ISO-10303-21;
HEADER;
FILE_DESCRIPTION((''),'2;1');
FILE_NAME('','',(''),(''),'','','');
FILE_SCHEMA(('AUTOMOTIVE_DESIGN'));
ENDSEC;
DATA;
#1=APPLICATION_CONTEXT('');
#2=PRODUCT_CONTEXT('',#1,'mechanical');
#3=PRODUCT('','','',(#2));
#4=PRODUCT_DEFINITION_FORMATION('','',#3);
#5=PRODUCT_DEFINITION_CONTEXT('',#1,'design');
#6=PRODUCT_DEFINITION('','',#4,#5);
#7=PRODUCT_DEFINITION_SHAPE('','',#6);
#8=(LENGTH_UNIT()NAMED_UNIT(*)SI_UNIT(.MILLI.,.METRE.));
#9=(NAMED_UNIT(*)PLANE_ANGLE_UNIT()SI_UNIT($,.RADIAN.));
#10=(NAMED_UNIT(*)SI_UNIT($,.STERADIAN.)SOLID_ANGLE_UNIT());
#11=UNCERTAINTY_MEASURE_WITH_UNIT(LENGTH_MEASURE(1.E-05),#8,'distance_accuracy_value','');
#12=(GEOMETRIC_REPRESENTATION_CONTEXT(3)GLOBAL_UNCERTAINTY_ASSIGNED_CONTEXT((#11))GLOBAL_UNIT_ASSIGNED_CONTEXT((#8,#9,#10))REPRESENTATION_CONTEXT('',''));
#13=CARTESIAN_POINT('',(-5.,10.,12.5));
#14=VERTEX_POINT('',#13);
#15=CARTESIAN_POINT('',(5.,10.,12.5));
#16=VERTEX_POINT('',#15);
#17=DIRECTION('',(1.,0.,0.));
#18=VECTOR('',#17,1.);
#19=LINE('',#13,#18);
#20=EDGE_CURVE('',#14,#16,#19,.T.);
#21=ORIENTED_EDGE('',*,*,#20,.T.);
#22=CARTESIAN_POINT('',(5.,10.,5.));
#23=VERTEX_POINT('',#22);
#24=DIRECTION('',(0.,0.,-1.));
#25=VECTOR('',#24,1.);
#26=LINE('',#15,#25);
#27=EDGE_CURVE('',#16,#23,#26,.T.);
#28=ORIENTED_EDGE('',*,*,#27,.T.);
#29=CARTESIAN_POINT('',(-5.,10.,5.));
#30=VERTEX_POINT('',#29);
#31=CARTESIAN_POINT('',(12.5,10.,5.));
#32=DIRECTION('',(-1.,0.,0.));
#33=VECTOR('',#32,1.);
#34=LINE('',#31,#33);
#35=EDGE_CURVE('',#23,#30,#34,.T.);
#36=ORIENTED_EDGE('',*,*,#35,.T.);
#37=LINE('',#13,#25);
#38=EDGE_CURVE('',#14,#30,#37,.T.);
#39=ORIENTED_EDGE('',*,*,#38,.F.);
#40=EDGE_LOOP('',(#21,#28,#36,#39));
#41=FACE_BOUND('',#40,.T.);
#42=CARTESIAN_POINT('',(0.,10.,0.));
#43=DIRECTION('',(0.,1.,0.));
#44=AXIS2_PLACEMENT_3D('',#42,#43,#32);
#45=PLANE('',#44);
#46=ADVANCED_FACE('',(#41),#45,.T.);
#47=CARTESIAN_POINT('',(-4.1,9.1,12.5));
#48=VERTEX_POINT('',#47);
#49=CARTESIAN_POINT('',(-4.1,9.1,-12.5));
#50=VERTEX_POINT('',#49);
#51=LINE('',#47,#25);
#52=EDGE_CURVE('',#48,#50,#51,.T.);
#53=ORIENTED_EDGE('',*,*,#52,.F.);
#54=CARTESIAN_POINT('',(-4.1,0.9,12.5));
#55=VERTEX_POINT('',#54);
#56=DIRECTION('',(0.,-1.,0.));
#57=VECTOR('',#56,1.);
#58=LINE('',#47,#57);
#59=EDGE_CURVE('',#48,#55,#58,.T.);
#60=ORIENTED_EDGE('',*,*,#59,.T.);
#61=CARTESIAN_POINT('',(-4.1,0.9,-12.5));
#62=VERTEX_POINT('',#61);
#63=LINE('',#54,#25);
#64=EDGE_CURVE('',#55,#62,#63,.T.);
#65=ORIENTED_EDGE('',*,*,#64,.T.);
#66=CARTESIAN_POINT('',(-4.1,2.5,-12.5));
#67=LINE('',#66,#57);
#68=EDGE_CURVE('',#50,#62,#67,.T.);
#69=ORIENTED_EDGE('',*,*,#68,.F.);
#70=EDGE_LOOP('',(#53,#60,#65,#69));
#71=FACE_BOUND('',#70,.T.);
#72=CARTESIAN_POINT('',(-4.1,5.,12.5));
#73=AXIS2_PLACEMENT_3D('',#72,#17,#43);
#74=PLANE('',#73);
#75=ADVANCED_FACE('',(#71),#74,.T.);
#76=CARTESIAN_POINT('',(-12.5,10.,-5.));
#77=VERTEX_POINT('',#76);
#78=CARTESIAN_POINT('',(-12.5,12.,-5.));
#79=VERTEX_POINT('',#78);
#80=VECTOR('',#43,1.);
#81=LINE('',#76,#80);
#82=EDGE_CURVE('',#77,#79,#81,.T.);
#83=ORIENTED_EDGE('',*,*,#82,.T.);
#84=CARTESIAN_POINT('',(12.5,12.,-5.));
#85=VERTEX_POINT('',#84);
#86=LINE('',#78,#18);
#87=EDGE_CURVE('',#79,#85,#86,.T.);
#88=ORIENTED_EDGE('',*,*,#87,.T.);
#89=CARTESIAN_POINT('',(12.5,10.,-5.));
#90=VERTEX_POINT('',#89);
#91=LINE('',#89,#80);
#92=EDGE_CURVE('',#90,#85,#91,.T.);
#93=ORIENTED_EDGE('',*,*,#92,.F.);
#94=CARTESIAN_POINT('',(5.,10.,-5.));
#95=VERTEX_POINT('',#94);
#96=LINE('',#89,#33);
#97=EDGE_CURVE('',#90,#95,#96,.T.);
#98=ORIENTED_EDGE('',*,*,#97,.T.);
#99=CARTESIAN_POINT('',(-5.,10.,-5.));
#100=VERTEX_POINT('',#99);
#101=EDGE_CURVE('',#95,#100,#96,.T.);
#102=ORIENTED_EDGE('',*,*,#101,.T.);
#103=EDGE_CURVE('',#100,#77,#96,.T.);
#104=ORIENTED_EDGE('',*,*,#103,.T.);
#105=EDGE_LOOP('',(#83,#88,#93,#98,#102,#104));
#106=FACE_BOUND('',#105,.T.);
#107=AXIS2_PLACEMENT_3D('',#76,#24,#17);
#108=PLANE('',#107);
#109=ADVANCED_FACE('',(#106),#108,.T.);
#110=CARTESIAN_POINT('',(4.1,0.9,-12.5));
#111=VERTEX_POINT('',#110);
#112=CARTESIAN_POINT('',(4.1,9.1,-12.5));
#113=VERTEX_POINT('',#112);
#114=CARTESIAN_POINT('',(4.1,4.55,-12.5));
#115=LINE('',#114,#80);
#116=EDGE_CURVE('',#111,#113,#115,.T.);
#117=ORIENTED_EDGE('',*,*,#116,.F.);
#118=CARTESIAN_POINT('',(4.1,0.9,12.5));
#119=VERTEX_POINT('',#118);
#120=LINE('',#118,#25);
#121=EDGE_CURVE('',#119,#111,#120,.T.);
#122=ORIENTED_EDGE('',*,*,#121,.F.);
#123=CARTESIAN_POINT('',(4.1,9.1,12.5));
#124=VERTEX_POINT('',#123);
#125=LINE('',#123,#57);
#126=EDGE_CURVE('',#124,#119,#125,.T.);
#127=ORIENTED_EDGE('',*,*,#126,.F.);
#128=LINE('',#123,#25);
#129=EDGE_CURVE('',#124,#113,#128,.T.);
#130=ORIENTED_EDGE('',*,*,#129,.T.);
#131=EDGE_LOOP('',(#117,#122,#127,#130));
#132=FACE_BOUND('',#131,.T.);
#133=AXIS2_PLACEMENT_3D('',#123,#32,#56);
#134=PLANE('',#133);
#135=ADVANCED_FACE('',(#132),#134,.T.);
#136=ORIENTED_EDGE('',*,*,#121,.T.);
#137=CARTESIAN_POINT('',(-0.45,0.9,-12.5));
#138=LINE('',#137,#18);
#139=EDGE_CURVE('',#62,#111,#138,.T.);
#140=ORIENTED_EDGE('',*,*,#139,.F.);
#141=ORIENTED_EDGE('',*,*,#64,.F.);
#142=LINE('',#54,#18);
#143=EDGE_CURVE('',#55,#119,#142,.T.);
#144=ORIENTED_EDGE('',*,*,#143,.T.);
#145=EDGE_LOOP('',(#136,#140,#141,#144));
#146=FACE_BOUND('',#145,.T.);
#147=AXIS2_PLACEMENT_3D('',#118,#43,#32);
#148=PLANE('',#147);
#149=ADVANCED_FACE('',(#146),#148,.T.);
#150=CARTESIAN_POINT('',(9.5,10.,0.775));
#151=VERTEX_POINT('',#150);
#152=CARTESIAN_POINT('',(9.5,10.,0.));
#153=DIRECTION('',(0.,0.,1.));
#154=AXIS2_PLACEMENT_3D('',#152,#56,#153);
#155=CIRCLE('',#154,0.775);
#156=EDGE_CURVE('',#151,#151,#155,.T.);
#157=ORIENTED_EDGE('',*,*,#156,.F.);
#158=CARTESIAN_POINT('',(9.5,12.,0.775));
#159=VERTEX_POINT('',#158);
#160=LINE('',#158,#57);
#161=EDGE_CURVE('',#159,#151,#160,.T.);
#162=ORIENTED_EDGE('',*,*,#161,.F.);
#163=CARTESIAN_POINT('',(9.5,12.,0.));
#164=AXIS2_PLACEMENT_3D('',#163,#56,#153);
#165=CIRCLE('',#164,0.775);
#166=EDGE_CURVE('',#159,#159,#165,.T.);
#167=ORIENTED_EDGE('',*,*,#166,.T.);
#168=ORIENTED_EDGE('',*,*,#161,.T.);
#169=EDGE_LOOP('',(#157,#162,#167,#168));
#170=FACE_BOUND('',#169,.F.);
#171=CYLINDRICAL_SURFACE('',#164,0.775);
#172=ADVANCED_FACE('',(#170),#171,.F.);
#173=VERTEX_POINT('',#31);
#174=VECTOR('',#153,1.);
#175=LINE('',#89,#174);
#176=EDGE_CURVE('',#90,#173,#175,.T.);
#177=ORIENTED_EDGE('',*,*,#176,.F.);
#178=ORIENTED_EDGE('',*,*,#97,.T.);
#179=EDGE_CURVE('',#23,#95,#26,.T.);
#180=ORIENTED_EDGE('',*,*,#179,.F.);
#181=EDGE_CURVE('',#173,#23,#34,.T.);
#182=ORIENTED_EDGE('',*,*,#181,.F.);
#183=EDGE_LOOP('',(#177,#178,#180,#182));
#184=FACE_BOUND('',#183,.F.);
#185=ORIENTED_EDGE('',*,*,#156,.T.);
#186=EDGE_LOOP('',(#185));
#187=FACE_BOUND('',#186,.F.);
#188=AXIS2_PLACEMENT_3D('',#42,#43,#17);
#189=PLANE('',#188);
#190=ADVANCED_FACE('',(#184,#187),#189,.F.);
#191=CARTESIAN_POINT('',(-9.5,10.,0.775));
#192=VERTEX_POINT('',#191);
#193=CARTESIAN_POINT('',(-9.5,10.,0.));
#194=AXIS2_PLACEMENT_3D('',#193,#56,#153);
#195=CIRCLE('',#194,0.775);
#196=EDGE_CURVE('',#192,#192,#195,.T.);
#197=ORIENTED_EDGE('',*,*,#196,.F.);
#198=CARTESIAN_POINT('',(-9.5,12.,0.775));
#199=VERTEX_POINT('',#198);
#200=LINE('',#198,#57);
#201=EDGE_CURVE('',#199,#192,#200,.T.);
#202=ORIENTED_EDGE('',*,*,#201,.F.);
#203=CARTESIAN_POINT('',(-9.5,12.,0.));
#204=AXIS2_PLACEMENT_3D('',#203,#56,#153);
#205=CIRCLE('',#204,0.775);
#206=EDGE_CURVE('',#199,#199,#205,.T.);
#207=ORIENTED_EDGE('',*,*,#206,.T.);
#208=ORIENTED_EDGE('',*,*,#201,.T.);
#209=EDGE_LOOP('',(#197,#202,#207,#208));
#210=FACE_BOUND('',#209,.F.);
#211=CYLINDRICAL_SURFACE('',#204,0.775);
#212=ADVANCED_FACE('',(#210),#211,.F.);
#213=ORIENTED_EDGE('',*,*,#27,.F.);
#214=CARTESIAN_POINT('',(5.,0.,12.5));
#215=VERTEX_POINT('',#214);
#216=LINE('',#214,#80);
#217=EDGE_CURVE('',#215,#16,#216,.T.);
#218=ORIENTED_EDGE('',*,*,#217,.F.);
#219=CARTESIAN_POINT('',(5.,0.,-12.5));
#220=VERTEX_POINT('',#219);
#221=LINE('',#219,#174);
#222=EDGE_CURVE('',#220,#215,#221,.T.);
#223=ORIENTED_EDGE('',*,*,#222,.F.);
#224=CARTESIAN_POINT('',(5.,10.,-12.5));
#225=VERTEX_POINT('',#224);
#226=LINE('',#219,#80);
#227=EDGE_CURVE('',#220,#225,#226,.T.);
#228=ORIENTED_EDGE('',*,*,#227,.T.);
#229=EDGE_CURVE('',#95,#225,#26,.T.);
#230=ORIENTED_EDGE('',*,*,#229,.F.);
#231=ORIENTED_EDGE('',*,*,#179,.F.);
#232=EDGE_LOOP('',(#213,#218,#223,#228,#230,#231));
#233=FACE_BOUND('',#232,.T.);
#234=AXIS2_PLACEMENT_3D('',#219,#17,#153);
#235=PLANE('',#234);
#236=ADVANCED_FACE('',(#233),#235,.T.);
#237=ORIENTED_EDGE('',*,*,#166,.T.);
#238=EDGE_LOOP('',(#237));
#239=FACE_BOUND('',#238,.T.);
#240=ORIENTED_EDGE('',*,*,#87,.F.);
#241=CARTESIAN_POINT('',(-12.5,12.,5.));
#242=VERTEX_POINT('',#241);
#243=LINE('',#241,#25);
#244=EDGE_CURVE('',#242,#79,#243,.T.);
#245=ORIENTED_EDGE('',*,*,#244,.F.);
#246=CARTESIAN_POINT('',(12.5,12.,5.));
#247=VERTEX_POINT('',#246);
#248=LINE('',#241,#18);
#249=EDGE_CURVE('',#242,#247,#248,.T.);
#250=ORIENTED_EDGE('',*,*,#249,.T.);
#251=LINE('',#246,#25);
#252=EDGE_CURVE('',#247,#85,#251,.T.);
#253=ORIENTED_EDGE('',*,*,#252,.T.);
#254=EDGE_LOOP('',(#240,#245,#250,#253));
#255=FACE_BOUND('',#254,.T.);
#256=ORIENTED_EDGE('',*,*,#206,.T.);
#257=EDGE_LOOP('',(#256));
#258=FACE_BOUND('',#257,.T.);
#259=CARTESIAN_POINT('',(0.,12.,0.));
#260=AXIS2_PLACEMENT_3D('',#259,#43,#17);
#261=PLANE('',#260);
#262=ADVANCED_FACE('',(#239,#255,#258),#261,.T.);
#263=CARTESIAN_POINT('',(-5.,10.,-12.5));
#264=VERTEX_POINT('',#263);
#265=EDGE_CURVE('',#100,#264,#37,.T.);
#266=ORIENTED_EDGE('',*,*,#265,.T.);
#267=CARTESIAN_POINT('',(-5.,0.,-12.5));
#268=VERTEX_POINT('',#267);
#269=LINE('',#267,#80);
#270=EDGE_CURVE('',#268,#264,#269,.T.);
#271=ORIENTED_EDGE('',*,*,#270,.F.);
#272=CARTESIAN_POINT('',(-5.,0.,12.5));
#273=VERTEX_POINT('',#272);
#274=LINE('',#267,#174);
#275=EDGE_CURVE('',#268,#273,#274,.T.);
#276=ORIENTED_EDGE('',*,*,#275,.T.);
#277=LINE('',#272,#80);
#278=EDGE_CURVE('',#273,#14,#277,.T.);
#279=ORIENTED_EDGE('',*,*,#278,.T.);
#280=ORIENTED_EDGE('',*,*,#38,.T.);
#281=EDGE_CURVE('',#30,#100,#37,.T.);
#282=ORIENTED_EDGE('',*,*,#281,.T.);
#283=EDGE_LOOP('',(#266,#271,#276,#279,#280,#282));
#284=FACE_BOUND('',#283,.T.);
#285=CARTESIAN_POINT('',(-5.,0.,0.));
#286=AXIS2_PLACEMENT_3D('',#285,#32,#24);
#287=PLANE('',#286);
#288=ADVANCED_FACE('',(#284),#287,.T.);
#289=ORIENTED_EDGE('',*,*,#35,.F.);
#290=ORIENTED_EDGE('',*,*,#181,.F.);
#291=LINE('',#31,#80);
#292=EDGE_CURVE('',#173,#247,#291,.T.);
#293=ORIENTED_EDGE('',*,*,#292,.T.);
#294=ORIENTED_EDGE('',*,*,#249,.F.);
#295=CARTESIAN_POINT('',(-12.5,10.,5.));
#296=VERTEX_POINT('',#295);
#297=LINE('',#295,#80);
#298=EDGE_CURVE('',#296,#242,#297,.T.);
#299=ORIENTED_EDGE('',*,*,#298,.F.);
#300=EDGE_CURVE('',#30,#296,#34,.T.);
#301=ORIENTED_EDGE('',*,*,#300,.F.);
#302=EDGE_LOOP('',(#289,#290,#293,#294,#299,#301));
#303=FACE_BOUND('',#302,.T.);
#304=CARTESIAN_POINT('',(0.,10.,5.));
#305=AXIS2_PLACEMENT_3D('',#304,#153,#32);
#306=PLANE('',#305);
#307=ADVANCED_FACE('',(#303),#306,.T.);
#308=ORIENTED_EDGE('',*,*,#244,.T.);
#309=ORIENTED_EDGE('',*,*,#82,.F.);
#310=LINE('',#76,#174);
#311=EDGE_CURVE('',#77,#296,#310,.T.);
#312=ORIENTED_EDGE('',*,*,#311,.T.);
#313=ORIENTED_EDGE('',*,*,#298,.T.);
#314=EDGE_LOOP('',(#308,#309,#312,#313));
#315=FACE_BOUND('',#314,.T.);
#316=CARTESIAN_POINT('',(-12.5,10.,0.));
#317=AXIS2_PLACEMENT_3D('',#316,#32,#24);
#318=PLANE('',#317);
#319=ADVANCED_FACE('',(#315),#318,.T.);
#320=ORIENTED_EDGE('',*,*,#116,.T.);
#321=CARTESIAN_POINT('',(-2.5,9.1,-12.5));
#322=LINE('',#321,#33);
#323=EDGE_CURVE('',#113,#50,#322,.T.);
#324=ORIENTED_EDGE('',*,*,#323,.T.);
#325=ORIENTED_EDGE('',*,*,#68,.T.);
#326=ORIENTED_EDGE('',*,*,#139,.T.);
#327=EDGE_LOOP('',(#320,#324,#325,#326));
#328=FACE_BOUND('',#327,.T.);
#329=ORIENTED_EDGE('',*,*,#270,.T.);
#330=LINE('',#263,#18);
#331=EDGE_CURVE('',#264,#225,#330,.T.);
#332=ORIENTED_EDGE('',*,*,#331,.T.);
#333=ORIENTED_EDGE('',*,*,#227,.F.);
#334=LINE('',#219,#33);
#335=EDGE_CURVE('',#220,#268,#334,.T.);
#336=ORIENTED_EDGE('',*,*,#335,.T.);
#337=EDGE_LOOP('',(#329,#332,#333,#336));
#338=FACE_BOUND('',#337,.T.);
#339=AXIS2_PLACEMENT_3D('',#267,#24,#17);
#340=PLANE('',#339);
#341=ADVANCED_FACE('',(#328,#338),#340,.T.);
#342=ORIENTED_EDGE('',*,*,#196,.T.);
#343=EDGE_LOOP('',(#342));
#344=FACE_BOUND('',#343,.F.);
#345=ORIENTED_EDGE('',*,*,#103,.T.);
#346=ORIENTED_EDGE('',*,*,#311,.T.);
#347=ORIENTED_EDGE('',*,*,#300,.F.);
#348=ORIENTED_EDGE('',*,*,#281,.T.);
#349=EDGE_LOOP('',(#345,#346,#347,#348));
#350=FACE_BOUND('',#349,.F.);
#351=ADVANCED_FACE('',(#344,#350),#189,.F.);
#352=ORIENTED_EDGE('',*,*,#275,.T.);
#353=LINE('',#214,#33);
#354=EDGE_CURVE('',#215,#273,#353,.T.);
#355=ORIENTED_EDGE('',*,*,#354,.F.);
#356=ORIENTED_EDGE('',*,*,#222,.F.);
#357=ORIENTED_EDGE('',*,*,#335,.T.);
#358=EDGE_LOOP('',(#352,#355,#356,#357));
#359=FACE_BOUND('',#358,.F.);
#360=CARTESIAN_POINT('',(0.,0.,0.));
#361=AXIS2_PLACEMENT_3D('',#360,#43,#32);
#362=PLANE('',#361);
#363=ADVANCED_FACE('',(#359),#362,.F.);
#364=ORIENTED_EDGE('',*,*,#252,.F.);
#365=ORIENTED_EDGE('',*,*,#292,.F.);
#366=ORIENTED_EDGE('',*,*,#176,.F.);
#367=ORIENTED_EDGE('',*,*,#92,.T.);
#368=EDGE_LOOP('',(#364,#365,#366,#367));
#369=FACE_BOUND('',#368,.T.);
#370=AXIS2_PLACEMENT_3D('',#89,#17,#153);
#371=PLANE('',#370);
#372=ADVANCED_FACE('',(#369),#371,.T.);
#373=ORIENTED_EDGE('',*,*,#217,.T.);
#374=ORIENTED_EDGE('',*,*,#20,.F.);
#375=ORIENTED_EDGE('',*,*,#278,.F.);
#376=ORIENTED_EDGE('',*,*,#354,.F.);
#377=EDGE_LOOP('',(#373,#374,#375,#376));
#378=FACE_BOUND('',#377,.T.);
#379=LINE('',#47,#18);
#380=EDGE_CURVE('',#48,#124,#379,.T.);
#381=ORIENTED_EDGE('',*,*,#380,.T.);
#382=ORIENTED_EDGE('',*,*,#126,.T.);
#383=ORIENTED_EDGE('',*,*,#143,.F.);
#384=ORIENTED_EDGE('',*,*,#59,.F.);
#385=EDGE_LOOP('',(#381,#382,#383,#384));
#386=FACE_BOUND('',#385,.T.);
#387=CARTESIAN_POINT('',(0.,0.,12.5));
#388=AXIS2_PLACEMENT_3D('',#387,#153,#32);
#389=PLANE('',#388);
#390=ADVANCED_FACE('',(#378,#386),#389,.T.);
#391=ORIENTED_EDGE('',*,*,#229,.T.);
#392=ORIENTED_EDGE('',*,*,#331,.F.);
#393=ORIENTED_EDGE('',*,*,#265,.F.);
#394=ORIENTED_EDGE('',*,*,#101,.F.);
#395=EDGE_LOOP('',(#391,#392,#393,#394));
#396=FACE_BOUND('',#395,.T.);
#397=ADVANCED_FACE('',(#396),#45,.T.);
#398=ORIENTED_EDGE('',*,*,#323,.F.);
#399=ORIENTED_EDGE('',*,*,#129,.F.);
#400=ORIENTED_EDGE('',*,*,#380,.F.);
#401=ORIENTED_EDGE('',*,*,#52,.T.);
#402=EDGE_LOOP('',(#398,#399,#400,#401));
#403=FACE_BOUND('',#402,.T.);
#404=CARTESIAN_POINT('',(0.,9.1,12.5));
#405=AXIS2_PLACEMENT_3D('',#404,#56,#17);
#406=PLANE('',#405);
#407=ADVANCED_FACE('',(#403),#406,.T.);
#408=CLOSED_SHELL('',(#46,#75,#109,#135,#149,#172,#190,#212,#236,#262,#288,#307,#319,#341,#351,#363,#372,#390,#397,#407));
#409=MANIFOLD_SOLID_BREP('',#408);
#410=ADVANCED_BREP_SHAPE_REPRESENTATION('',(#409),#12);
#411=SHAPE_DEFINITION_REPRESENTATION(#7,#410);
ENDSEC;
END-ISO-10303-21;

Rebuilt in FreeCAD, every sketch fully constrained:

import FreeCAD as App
import Part
import Sketcher

V = App.Vector
Q = App.Units.Quantity

doc = App.newDocument("Part")
params = doc.addObject("Spreadsheet::Sheet", "Params")
for row, (alias, value) in enumerate([
    ("sketch1_width", "10 mm"),
    ("sketch1_height", "25 mm"),
    ("pad1_length", "10 mm"),
    ("sketch2_width", "8.2 mm"),
    ("sketch3_width", "25 mm"),
    ("sketch3_height", "10 mm"),
    ("pad2_length", "2 mm"),
    ("sketch4_diameter", "1.55 mm"),
    ("hole_diameter", "1.55 mm"),
], start=1):
    params.set(f"A{row}", alias)
    params.set(f"B{row}", "=" + value)
    params.setAlias(f"B{row}", alias)

body = doc.addObject("PartDesign::Body", "Body")

# Sketch on XZ plane
sketch1 = body.newObject("Sketcher::SketchObject", "Sketch")
sketch1.AttachmentSupport = (doc.getObject("XZ_Plane"), [""])
sketch1.MapMode = "FlatFace"
sketch1.addGeometry([
    Part.LineSegment(V(-5, -12, 0), V(-5, 12, 0)),
    Part.LineSegment(V(-5, 12, 0), V(5, 12, 0)),
    Part.LineSegment(V(5, 12, 0), V(5, -12, 0)),
    Part.LineSegment(V(5, -12, 0), V(-5, -12, 0)),
], False)
sketch1.addConstraint([
    Sketcher.Constraint("Coincident", 0, 2, 1, 1),
    Sketcher.Constraint("Coincident", 1, 2, 2, 1),
    Sketcher.Constraint("Coincident", 2, 2, 3, 1),
    Sketcher.Constraint("Coincident", 3, 2, 0, 1),
    Sketcher.Constraint("Vertical", 0),
    Sketcher.Constraint("Horizontal", 1),
    Sketcher.Constraint("Vertical", 2),
    Sketcher.Constraint("Horizontal", 3),
    Sketcher.Constraint("Symmetric", 0, 2, 2, 2, -1, 1),
    Sketcher.Constraint("DistanceX", 1, 1, 1, 2, Q("10 mm")),
    Sketcher.Constraint("DistanceY", 0, 1, 0, 2, Q("25 mm")),
])
sketch1.setExpression("Constraints[9]", "Params.sketch1_width")
sketch1.setExpression("Constraints[10]", "Params.sketch1_height")
pad1 = body.newObject("PartDesign::Pad", "Pad")
pad1.Profile = sketch1
pad1.setExpression("Length", "Params.pad1_length")
pad1.Reversed = True

# Sketch on XY plane
sketch2 = body.newObject("Sketcher::SketchObject", "Sketch001")
sketch2.AttachmentSupport = (doc.getObject("XY_Plane"), [""])
sketch2.MapMode = "FlatFace"
sketch2.AttachmentOffset = App.Placement(V(0, 0, 12.5), App.Rotation())
sketch2.addGeometry([
    Part.LineSegment(V(4, 9, 0), V(-4, 9, 0)),
    Part.LineSegment(V(-4, 9, 0), V(-4, 1, 0)),
    Part.LineSegment(V(-4, 1, 0), V(4, 1, 0)),
    Part.LineSegment(V(4, 1, 0), V(4, 9, 0)),
], False)
sketch2.addConstraint([
    Sketcher.Constraint("Coincident", 0, 2, 1, 1),
    Sketcher.Constraint("Coincident", 1, 2, 2, 1),
    Sketcher.Constraint("Coincident", 2, 2, 3, 1),
    Sketcher.Constraint("Coincident", 3, 2, 0, 1),
    Sketcher.Constraint("Horizontal", 0),
    Sketcher.Constraint("Vertical", 1),
    Sketcher.Constraint("Horizontal", 2),
    Sketcher.Constraint("Vertical", 3),
    Sketcher.Constraint("Equal", 2, 1),
    Sketcher.Constraint("DistanceX", 0, 2, 0, 1, Q("8.2 mm")),
    Sketcher.Constraint("DistanceX", 0, 2, -1, 1, Q("4.1 mm")),
    Sketcher.Constraint("DistanceY", -1, 1, 0, 2, Q("9.1 mm")),
])
sketch2.setExpression("Constraints[9]", "Params.sketch2_width")
pocket1 = body.newObject("PartDesign::Pocket", "Pocket")
pocket1.Profile = sketch2
pocket1.Type = "ThroughAll"

# Sketch on XZ plane
sketch3 = body.newObject("Sketcher::SketchObject", "Sketch002")
sketch3.AttachmentSupport = (doc.getObject("XZ_Plane"), [""])
sketch3.MapMode = "FlatFace"
sketch3.AttachmentOffset = App.Placement(V(0, 0, -10), App.Rotation())
sketch3.addGeometry([
    Part.LineSegment(V(-12, -5, 0), V(-12, 5, 0)),
    Part.LineSegment(V(-12, 5, 0), V(12, 5, 0)),
    Part.LineSegment(V(12, 5, 0), V(12, -5, 0)),
    Part.LineSegment(V(12, -5, 0), V(-12, -5, 0)),
], False)
sketch3.addConstraint([
    Sketcher.Constraint("Coincident", 0, 2, 1, 1),
    Sketcher.Constraint("Coincident", 1, 2, 2, 1),
    Sketcher.Constraint("Coincident", 2, 2, 3, 1),
    Sketcher.Constraint("Coincident", 3, 2, 0, 1),
    Sketcher.Constraint("Vertical", 0),
    Sketcher.Constraint("Horizontal", 1),
    Sketcher.Constraint("Vertical", 2),
    Sketcher.Constraint("Horizontal", 3),
    Sketcher.Constraint("Symmetric", 0, 2, 2, 2, -1, 1),
    Sketcher.Constraint("DistanceX", 1, 1, 1, 2, Q("25 mm")),
    Sketcher.Constraint("DistanceY", 0, 1, 0, 2, Q("10 mm")),
])
sketch3.setExpression("Constraints[9]", "Params.sketch3_width")
sketch3.setExpression("Constraints[10]", "Params.sketch3_height")
pad2 = body.newObject("PartDesign::Pad", "Pad001")
pad2.Profile = sketch3
pad2.setExpression("Length", "Params.pad2_length")
pad2.Reversed = True

# Sketch on XZ plane
sketch4 = body.newObject("Sketcher::SketchObject", "Sketch003")
sketch4.AttachmentSupport = (doc.getObject("XZ_Plane"), [""])
sketch4.MapMode = "FlatFace"
sketch4.AttachmentOffset = App.Placement(V(0, 0, -12), App.Rotation())
sketch4.addGeometry([
    Part.Circle(V(9.5, 0, 0), V(0, 0, 1), 0.8),
    Part.Circle(V(-9.5, 0, 0), V(0, 0, 1), 0.8),
], False)
sketch4.addConstraint([
    Sketcher.Constraint("Equal", 0, 1),
    Sketcher.Constraint("Symmetric", 0, 3, 1, 3, -1, 1),
    Sketcher.Constraint("PointOnObject", 0, 3, -1),
    Sketcher.Constraint("Diameter", 0, Q("1.55 mm")),
    Sketcher.Constraint("DistanceX", 1, 3, 0, 3, Q("19 mm")),
])
sketch4.setExpression("Constraints[3]", "Params.sketch4_diameter")
doc.recompute()
hole = body.newObject("PartDesign::Hole", "Hole")
hole.Profile = sketch4
hole.ThreadType = "None"
hole.setExpression("Diameter", "Params.hole_diameter")
hole.DepthType = "ThroughAll"
hole.Reversed = True

doc.recompute()
